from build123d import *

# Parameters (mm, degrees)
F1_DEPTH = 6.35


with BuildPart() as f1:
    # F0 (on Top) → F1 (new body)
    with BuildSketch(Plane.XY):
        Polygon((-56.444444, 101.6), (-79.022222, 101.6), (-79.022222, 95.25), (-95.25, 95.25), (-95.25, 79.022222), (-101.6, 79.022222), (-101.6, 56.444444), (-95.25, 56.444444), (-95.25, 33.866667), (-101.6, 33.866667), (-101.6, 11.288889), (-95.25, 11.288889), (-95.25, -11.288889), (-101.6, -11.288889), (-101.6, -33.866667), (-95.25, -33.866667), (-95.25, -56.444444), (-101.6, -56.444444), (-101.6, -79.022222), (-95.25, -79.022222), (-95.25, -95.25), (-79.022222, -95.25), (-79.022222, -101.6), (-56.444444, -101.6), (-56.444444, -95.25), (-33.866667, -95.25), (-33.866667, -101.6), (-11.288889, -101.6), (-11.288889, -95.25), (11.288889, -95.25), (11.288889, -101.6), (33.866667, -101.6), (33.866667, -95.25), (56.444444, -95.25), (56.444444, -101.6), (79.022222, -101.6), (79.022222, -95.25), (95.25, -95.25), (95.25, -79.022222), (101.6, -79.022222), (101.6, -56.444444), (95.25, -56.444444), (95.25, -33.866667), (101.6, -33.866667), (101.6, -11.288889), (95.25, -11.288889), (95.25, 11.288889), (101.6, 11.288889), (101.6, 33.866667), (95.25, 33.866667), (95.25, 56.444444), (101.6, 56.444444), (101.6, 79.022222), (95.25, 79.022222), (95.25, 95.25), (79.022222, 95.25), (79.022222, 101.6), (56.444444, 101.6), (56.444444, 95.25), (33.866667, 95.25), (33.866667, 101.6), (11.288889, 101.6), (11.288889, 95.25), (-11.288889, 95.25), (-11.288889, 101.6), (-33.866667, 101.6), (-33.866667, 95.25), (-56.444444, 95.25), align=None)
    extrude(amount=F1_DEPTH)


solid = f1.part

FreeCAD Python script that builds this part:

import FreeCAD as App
import Part
import Sketcher
Q = App.Units.Quantity


def add_polygon(sketch, points):
    """Adds a closed chain of lines whose ends are joined by coincident constraints."""
    first, n = sketch.GeometryCount, len(points)
    for a, b in zip(points, points[1:] + points[:1]):
        sketch.addGeometry(Part.LineSegment(App.Vector(*a, 0), App.Vector(*b, 0)), False)
    for i in range(n):
        sketch.addConstraint(Sketcher.Constraint("Coincident", first + i, 2, first + (i + 1) % n, 1))

doc = App.newDocument("Part")
body = doc.addObject("PartDesign::Body", "Body")

sketch1 = doc.addObject("Sketcher::SketchObject", "Sketch")
body.addObject(sketch1)
sketch1.AttachmentSupport = (doc.XY_Plane, [""])
sketch1.MapMode = "FlatFace"
add_polygon(sketch1, [(-56, 102), (-79, 102), (-79, 95), (-95, 95), (-95, 79), (-102, 79), (-102, 56), (-95, 56), (-95, 34), (-102, 34), (-102, 11), (-95, 11), (-95, -11), (-102, -11), (-102, -34), (-95, -34), (-95, -56), (-102, -56), (-102, -79), (-95, -79), (-95, -95), (-79, -95), (-79, -102), (-56, -102), (-56, -95), (-34, -95), (-34, -102), (-11, -102), (-11, -95), (11, -95), (11, -102), (34, -102), (34, -95), (56, -95), (56, -102), (79, -102), (79, -95), (95, -95), (95, -79), (102, -79), (102, -56), (95, -56), (95, -34), (102, -34), (102, -11), (95, -11), (95, 11), (102, 11), (102, 34), (95, 34), (95, 56), (102, 56), (102, 79), (95, 79), (95, 95), (79, 95), (79, 102), (56, 102), (56, 95), (34, 95), (34, 102), (11, 102), (11, 95), (-11, 95), (-11, 102), (-34, 102), (-34, 95), (-56, 95)])
sketch1.addConstraint(Sketcher.Constraint("Horizontal", 0))
sketch1.addConstraint(Sketcher.Constraint("Vertical", 1))
sketch1.addConstraint(Sketcher.Constraint("Horizontal", 2))
sketch1.addConstraint(Sketcher.Constraint("Vertical", 3))
sketch1.addConstraint(Sketcher.Constraint("Horizontal", 4))
sketch1.addConstraint(Sketcher.Constraint("Vertical", 5))
sketch1.addConstraint(Sketcher.Constraint("Horizontal", 6))
sketch1.addConstraint(Sketcher.Constraint("Vertical", 7))
sketch1.addConstraint(Sketcher.Constraint("Horizontal", 8))
sketch1.addConstraint(Sketcher.Constraint("Vertical", 9))
sketch1.addConstraint(Sketcher.Constraint("Horizontal", 10))
sketch1.addConstraint(Sketcher.Constraint("Vertical", 11))
sketch1.addConstraint(Sketcher.Constraint("Horizontal", 12))
sketch1.addConstraint(Sketcher.Constraint("Vertical", 13))
sketch1.addConstraint(Sketcher.Constraint("Horizontal", 14))
sketch1.addConstraint(Sketcher.Constraint("Vertical", 15))
sketch1.addConstraint(Sketcher.Constraint("Horizontal", 16))
sketch1.addConstraint(Sketcher.Constraint("Vertical", 17))
sketch1.addConstraint(Sketcher.Constraint("Horizontal", 18))
sketch1.addConstraint(Sketcher.Constraint("Vertical", 19))
sketch1.addConstraint(Sketcher.Constraint("Horizontal", 20))
sketch1.addConstraint(Sketcher.Constraint("Vertical", 21))
sketch1.addConstraint(Sketcher.Constraint("Horizontal", 22))
sketch1.addConstraint(Sketcher.Constraint("Vertical", 23))
sketch1.addConstraint(Sketcher.Constraint("Horizontal", 24))
sketch1.addConstraint(Sketcher.Constraint("Vertical", 25))
sketch1.addConstraint(Sketcher.Constraint("Horizontal", 26))
sketch1.addConstraint(Sketcher.Constraint("Vertical", 27))
sketch1.addConstraint(Sketcher.Constraint("Horizontal", 28))
sketch1.addConstraint(Sketcher.Constraint("Vertical", 29))
sketch1.addConstraint(Sketcher.Constraint("Horizontal", 30))
sketch1.addConstraint(Sketcher.Constraint("Vertical", 31))
sketch1.addConstraint(Sketcher.Constraint("Horizontal", 32))
sketch1.addConstraint(Sketcher.Constraint("Vertical", 33))
sketch1.addConstraint(Sketcher.Constraint("Horizontal", 34))
sketch1.addConstraint(Sketcher.Constraint("Vertical", 35))
sketch1.addConstraint(Sketcher.Constraint("Horizontal", 36))
sketch1.addConstraint(Sketcher.Constraint("Vertical", 37))
sketch1.addConstraint(Sketcher.Constraint("Horizontal", 38))
sketch1.addConstraint(Sketcher.Constraint("Vertical", 39))
sketch1.addConstraint(Sketcher.Constraint("Horizontal", 40))
sketch1.addConstraint(Sketcher.Constraint("Vertical", 41))
sketch1.addConstraint(Sketcher.Constraint("Horizontal", 42))
sketch1.addConstraint(Sketcher.Constraint("Vertical", 43))
sketch1.addConstraint(Sketcher.Constraint("Horizontal", 44))
sketch1.addConstraint(Sketcher.Constraint("Vertical", 45))
sketch1.addConstraint(Sketcher.Constraint("Horizontal", 46))
sketch1.addConstraint(Sketcher.Constraint("Vertical", 47))
sketch1.addConstraint(Sketcher.Constraint("Horizontal", 48))
sketch1.addConstraint(Sketcher.Constraint("Vertical", 49))
sketch1.addConstraint(Sketcher.Constraint("Horizontal", 50))
sketch1.addConstraint(Sketcher.Constraint("Vertical", 51))
sketch1.addConstraint(Sketcher.Constraint("Horizontal", 52))
sketch1.addConstraint(Sketcher.Constraint("Vertical", 53))
sketch1.addConstraint(Sketcher.Constraint("Horizontal", 54))
sketch1.addConstraint(Sketcher.Constraint("Vertical", 55))
sketch1.addConstraint(Sketcher.Constraint("Horizontal", 56))
sketch1.addConstraint(Sketcher.Constraint("Vertical", 57))
sketch1.addConstraint(Sketcher.Constraint("Horizontal", 58))
sketch1.addConstraint(Sketcher.Constraint("Vertical", 59))
sketch1.addConstraint(Sketcher.Constraint("Horizontal", 60))
sketch1.addConstraint(Sketcher.Constraint("Vertical", 61))
sketch1.addConstraint(Sketcher.Constraint("Horizontal", 62))
sketch1.addConstraint(Sketcher.Constraint("Vertical", 63))
sketch1.addConstraint(Sketcher.Constraint("Horizontal", 64))
sketch1.addConstraint(Sketcher.Constraint("Vertical", 65))
sketch1.addConstraint(Sketcher.Constraint("Horizontal", 66))
sketch1.addConstraint(Sketcher.Constraint("Vertical", 67))
sketch1.addConstraint(Sketcher.Constraint("Symmetric", 0, 2, 34, 2, -1, 1))
sketch1.addConstraint(Sketcher.Constraint("Symmetric", 2, 2, 36, 2, -1, 1))
sketch1.addConstraint(Sketcher.Constraint("Symmetric", 4, 2, 38, 2, -1, 1))
sketch1.addConstraint(Sketcher.Constraint("Symmetric", 6, 2, 40, 2, -1, 1))
sketch1.addConstraint(Sketcher.Constraint("Symmetric", 8, 2, 42, 2, -1, 1))
sketch1.addConstraint(Sketcher.Constraint("Symmetric", 10, 2, 44, 2, -1, 1))
sketch1.addConstraint(Sketcher.Constraint("Symmetric", 12, 2, 46, 2, -1, 1))
sketch1.addConstraint(Sketcher.Constraint("Symmetric", 14, 2, 48, 2, -1, 1))
sketch1.addConstraint(Sketcher.Constraint("Symmetric", 16, 2, 50, 2, -1, 1))
sketch1.addConstraint(Sketcher.Constraint("Symmetric", 18, 2, 52, 2, -1, 1))
sketch1.addConstraint(Sketcher.Constraint("Symmetric", 20, 2, 54, 2, -1, 1))
sketch1.addConstraint(Sketcher.Constraint("Symmetric", 22, 2, 56, 2, -1, 1))
sketch1.addConstraint(Sketcher.Constraint("Symmetric", 24, 2, 58, 2, -1, 1))
sketch1.addConstraint(Sketcher.Constraint("Symmetric", 26, 2, 60, 2, -1, 1))
sketch1.addConstraint(Sketcher.Constraint("Symmetric", 28, 2, 62, 2, -1, 1))
sketch1.addConstraint(Sketcher.Constraint("Symmetric", 30, 2, 64, 2, -1, 1))
sketch1.addConstraint(Sketcher.Constraint("Symmetric", 32, 2, 66, 2, -1, 1))
sketch1.addConstraint(Sketcher.Constraint("Symmetric", 26, 2, 29, 2, -2))
sketch1.addConstraint(Sketcher.Constraint("Symmetric", 24, 2, 31, 2, -2))
sketch1.addConstraint(Sketcher.Constraint("Symmetric", 22, 2, 33, 2, -2))
sketch1.addConstraint(Sketcher.Constraint("Symmetric", 20, 2, 35, 2, -2))
sketch1.addConstraint(Sketcher.Constraint("Symmetric", 18, 2, 37, 2, -2))
sketch1.addConstraint(Sketcher.Constraint("Symmetric", 16, 2, 39, 2, -2))
sketch1.addConstraint(Sketcher.Constraint("Symmetric", 14, 2, 41, 2, -2))
sketch1.addConstraint(Sketcher.Constraint("Symmetric", 12, 2, 43, 2, -2))
sketch1.addConstraint(Sketcher.Constraint("Horizontal", 20, 2, 23, 2))
sketch1.addConstraint(Sketcher.Constraint("Horizontal", 22, 2, 25, 2))
sketch1.addConstraint(Sketcher.Constraint("Horizontal", 24, 2, 27, 2))
sketch1.addConstraint(Sketcher.Constraint("Vertical", 3, 2, 6, 2))
sketch1.addConstraint(Sketcher.Constraint("Vertical", 5, 2, 8, 2))
sketch1.addConstraint(Sketcher.Constraint("Vertical", 7, 2, 10, 2))
sketch1.addConstraint(Sketcher.Constraint("Equal", 22, 24))
sketch1.addConstraint(Sketcher.Constraint("Equal", 24, 26))
sketch1.addConstraint(Sketcher.Constraint("Equal", 26, 28))
sketch1.addConstraint(Sketcher.Constraint("Equal", 52, 1))
sketch1.addConstraint(Sketcher.Constraint("Equal", 54, 3))
sketch1.addConstraint(Sketcher.Constraint("Equal", 66, 5))
sketch1.addConstraint(Sketcher.Constraint("Equal", 5, 7))
sketch1.addConstraint(Sketcher.Constraint("Equal", 7, 9))
sketch1.addConstraint(Sketcher.Constraint("Equal", 9, 11))
sketch1.addConstraint(Sketcher.Constraint("DistanceY", -1, 1, 0, 2, Q("4 in")))
sketch1.addConstraint(Sketcher.Constraint("DistanceX", 4, 2, 4, 1, Q("0.25 in")))
sketch1.addConstraint(Sketcher.Constraint("DistanceX", 0, 2, 0, 1, Q("22.577778 mm")))
pad1 = doc.addObject("PartDesign::Pad", "Pad")
body.addObject(pad1)
pad1.Profile = sketch1
pad1.Length = Q("0.25 in")

doc.recompute()
